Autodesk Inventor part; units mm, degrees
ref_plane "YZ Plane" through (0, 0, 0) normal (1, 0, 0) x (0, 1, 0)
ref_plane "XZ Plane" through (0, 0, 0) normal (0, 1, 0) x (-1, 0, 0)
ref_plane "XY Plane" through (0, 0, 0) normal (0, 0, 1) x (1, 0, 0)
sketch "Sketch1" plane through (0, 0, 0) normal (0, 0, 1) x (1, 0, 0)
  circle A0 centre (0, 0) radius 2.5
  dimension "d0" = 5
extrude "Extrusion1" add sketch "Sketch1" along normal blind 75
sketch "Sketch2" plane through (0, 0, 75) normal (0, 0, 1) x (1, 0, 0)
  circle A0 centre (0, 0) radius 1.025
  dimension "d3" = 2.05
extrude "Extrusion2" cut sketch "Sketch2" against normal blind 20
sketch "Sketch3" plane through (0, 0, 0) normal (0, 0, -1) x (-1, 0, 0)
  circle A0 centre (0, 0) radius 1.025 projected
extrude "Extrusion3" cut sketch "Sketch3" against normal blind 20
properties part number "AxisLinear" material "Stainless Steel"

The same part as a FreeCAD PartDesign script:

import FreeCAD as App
import Part
import Sketcher
from FreeCAD import Vector
Q = App.Units.Quantity

doc = App.newDocument("Part")
body = doc.addObject("PartDesign::Body", "Body")

sketch1 = body.newObject("Sketcher::SketchObject", "Sketch")
sketch1.AttachmentSupport = (doc.getObject("XY_Plane"), [""])
sketch1.MapMode = "FlatFace"
sketch1.addGeometry(Part.Circle(Vector(0, 0, 0), Vector(0, 0, 1), 2.5), False)
sketch1.addConstraint([
    Sketcher.Constraint("Coincident", 0, 3, -1, 1),
    Sketcher.Constraint("Diameter", 0, Q("5 mm")),
])
pad1 = body.newObject("PartDesign::Pad", "Pad")
pad1.Profile = sketch1
pad1.Length = 75

sketch2 = body.newObject("Sketcher::SketchObject", "Sketch001")
sketch2.AttachmentSupport = (doc.getObject("XY_Plane"), [""])
sketch2.MapMode = "FlatFace"
sketch2.AttachmentOffset = App.Placement(Vector(0, 0, 75), App.Rotation())
sketch2.addGeometry(Part.Circle(Vector(0, 0, 0), Vector(0, 0, 1), 1), False)
sketch2.addConstraint([
    Sketcher.Constraint("Coincident", 0, 3, -1, 1),
    Sketcher.Constraint("Diameter", 0, Q("2.05 mm")),
])
pocket1 = body.newObject("PartDesign::Pocket", "Pocket")
pocket1.Profile = sketch2
pocket1.Length = 20

sketch3 = body.newObject("Sketcher::SketchObject", "Sketch002")
sketch3.AttachmentSupport = (doc.getObject("XY_Plane"), [""])
sketch3.MapMode = "FlatFace"
sketch3.addGeometry(Part.Circle(Vector(0, 0, 0), Vector(0, 0, 1), 1), False)
sketch3.addConstraint([
    Sketcher.Constraint("Coincident", 0, 3, -1, 1),
    Sketcher.Constraint("Diameter", 0, Q("2.05 mm")),
])
pocket2 = body.newObject("PartDesign::Pocket", "Pocket001")
pocket2.Profile = sketch3
pocket2.Length = 20
pocket2.Reversed = True

doc.recompute()
